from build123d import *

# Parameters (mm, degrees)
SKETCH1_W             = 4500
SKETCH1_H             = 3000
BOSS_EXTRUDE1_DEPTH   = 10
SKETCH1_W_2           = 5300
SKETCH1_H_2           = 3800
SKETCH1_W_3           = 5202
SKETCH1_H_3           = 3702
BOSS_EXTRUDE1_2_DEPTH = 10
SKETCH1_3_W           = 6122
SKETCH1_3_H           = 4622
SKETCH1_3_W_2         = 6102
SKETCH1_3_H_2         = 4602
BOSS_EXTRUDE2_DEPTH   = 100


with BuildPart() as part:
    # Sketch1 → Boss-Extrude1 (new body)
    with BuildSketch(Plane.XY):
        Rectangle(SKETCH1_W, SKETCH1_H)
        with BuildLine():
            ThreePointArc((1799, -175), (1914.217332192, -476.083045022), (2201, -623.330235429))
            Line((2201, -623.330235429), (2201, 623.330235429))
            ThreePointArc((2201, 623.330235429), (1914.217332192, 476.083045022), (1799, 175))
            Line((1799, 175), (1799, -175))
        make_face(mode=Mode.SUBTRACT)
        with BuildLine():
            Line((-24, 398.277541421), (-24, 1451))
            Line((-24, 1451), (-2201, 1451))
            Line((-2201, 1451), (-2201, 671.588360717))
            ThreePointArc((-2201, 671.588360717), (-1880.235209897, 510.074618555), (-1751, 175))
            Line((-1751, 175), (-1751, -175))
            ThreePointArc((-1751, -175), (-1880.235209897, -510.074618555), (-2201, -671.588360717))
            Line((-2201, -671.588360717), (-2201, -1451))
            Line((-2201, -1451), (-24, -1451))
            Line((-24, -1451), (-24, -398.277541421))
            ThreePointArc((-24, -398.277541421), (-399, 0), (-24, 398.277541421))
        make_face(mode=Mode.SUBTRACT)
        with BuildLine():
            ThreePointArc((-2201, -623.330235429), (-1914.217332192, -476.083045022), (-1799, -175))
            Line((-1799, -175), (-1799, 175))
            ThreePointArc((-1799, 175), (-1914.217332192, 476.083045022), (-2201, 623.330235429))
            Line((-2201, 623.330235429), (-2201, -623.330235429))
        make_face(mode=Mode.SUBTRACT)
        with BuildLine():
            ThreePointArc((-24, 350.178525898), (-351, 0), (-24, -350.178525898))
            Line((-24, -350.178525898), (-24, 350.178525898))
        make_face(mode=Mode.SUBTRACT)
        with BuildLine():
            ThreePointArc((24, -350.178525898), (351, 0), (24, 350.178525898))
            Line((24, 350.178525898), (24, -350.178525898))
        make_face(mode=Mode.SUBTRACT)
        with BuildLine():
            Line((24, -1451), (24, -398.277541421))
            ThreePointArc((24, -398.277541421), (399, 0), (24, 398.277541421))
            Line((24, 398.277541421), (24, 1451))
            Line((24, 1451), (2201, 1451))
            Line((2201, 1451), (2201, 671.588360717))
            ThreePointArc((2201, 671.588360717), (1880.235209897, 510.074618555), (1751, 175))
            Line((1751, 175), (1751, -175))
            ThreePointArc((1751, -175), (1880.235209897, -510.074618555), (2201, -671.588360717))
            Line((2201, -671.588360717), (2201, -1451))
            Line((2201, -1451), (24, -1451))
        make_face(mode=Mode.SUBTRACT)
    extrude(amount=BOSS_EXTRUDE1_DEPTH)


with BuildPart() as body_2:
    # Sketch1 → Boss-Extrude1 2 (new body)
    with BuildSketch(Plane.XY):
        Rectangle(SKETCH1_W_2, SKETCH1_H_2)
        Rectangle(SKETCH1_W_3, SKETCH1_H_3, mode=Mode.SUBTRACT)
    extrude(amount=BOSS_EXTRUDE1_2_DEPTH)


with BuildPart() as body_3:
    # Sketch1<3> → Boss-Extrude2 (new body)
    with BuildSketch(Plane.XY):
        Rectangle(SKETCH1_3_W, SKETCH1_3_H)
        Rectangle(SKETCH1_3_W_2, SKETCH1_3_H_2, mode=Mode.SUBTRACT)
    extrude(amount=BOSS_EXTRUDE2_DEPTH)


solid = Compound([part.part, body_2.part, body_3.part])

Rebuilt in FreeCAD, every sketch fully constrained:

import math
import FreeCAD as App
import Part
import Sketcher
Q = App.Units.Quantity


def add_polygon(sketch, points):
    """Adds a closed chain of lines whose ends are joined by coincident constraints."""
    first, n = sketch.GeometryCount, len(points)
    for a, b in zip(points, points[1:] + points[:1]):
        sketch.addGeometry(Part.LineSegment(App.Vector(*a, 0), App.Vector(*b, 0)), False)
    for i in range(n):
        sketch.addConstraint(Sketcher.Constraint("Coincident", first + i, 2, first + (i + 1) % n, 1))

doc = App.newDocument("Part")
params = doc.addObject("Spreadsheet::Sheet", "Params")
for row, (alias, value) in enumerate([
    ("sketch1_radius", "451 mm"),
    ("sketch1_radius2", "399 mm"),
    ("sketch1_radius3", "499 mm"),
    ("sketch1_radius4", "351 mm"),
    ("sketch1_width", "4500 mm"),
    ("pad1_length", "10 mm"),
    ("sketch2_width", "5300 mm"),
    ("sketch2_width2", "5202 mm"),
    ("sketch2_height", "3800 mm"),
    ("sketch2_height2", "3702 mm"),
    ("pad2_length", "10 mm"),
    ("sketch3_width", "6122 mm"),
    ("sketch3_width2", "6102 mm"),
    ("sketch3_height", "4622 mm"),
    ("sketch3_height2", "4602 mm"),
    ("pad3_length", "100 mm"),
], start=1):
    params.set(f"A{row}", alias)
    params.set(f"B{row}", "=" + value)
    params.setAlias(f"B{row}", alias)

body = doc.addObject("PartDesign::Body", "Body")

sketch1 = body.newObject("Sketcher::SketchObject", "Sketch")
sketch1.AttachmentSupport = (doc.getObject("XY_Plane"), [""])
sketch1.MapMode = "FlatFace"
add_polygon(sketch1, [(-2250, 1500), (-2250, -1500), (2250, -1500), (2250, 1500)])
sketch1.addGeometry(Part.ArcOfCircle(Part.Circle(App.Vector(-2250, -175, 0), App.Vector(0, 0, 1), 451), math.radians(-84), math.radians(0)), False)
sketch1.addGeometry(Part.LineSegment(App.Vector(-2201, -623, 0), App.Vector(-2201, 623, 0)), False)
sketch1.addGeometry(Part.ArcOfCircle(Part.Circle(App.Vector(-2250, 175, 0), App.Vector(0, 0, 1), 451), math.radians(0), math.radians(84)), False)
sketch1.addGeometry(Part.LineSegment(App.Vector(-1799, 175, 0), App.Vector(-1799, -175, 0)), False)
sketch1.addGeometry(Part.LineSegment(App.Vector(-24, 1451, 0), App.Vector(-24, 398, 0)), False)
sketch1.addGeometry(Part.ArcOfCircle(Part.Circle(App.Vector(0, 0, 0), App.Vector(0, 0, 1), 399), math.radians(93), math.radians(267)), False)
sketch1.addGeometry(Part.LineSegment(App.Vector(-24, -398, 0), App.Vector(-24, -1451, 0)), False)
sketch1.addGeometry(Part.LineSegment(App.Vector(-24, -1451, 0), App.Vector(-2201, -1451, 0)), False)
sketch1.addGeometry(Part.LineSegment(App.Vector(-2201, -1451, 0), App.Vector(-2201, -672, 0)), False)
sketch1.addGeometry(Part.ArcOfCircle(Part.Circle(App.Vector(-2250, -175, 0), App.Vector(0, 0, 1), 499), math.radians(-84), math.radians(0)), False)
sketch1.addGeometry(Part.LineSegment(App.Vector(-1751, -175, 0), App.Vector(-1751, 175, 0)), False)
sketch1.addGeometry(Part.ArcOfCircle(Part.Circle(App.Vector(-2250, 175, 0), App.Vector(0, 0, 1), 499), math.radians(0), math.radians(84)), False)
sketch1.addGeometry(Part.LineSegment(App.Vector(-2201, 672, 0), App.Vector(-2201, 1451, 0)), False)
sketch1.addGeometry(Part.LineSegment(App.Vector(-2201, 1451, 0), App.Vector(-24, 1451, 0)), False)
sketch1.addGeometry(Part.ArcOfCircle(Part.Circle(App.Vector(0, 0, 0), App.Vector(0, 0, 1), 351), math.radians(94), math.radians(266)), False)
sketch1.addGeometry(Part.LineSegment(App.Vector(-24, 350, 0), App.Vector(-24, -350, 0)), False)
sketch1.addGeometry(Part.ArcOfCircle(Part.Circle(App.Vector(0, 0, 0), App.Vector(0, 0, 1), 351), math.radians(-86), math.radians(86)), False)
sketch1.addGeometry(Part.LineSegment(App.Vector(24, -350, 0), App.Vector(24, 350, 0)), False)
sketch1.addGeometry(Part.LineSegment(App.Vector(2201, -1451, 0), App.Vector(24, -1451, 0)), False)
sketch1.addGeometry(Part.LineSegment(App.Vector(24, -1451, 0), App.Vector(24, -398, 0)), False)
sketch1.addGeometry(Part.ArcOfCircle(Part.Circle(App.Vector(0, 0, 0), App.Vector(0, 0, 1), 399), math.radians(-87), math.radians(87)), False)
sketch1.addGeometry(Part.LineSegment(App.Vector(24, 398, 0), App.Vector(24, 1451, 0)), False)
sketch1.addGeometry(Part.LineSegment(App.Vector(24, 1451, 0), App.Vector(2201, 1451, 0)), False)
sketch1.addGeometry(Part.LineSegment(App.Vector(2201, 1451, 0), App.Vector(2201, 672, 0)), False)
sketch1.addGeometry(Part.ArcOfCircle(Part.Circle(App.Vector(2250, 175, 0), App.Vector(0, 0, 1), 499), math.radians(96), math.radians(180)), False)
sketch1.addGeometry(Part.LineSegment(App.Vector(1751, 175, 0), App.Vector(1751, -175, 0)), False)
sketch1.addGeometry(Part.ArcOfCircle(Part.Circle(App.Vector(2250, -175, 0), App.Vector(0, 0, 1), 499), math.radians(180), math.radians(264)), False)
sketch1.addGeometry(Part.LineSegment(App.Vector(2201, -672, 0), App.Vector(2201, -1451, 0)), False)
sketch1.addGeometry(Part.ArcOfCircle(Part.Circle(App.Vector(2250, -175, 0), App.Vector(0, 0, 1), 451), math.radians(180), math.radians(264)), False)
sketch1.addGeometry(Part.LineSegment(App.Vector(1799, -175, 0), App.Vector(1799, 175, 0)), False)
sketch1.addGeometry(Part.ArcOfCircle(Part.Circle(App.Vector(2250, 175, 0), App.Vector(0, 0, 1), 451), math.radians(96), math.radians(180)), False)
sketch1.addGeometry(Part.LineSegment(App.Vector(2201, 623, 0), App.Vector(2201, -623, 0)), False)
sketch1.addConstraint([
    Sketcher.Constraint("Coincident", 4, 1, 5, 1),
    Sketcher.Constraint("Coincident", 5, 2, 6, 2),
    Sketcher.Constraint("Tangent", 6, 1, 7, 1),
    Sketcher.Constraint("Tangent", 7, 2, 4, 2),
    Sketcher.Constraint("Coincident", 8, 2, 9, 1),
    Sketcher.Constraint("Coincident", 9, 2, 10, 1),
    Sketcher.Constraint("Coincident", 10, 2, 11, 1),
    Sketcher.Constraint("Coincident", 11, 2, 12, 1),
    Sketcher.Constraint("Coincident", 12, 2, 13, 1),
    Sketcher.Constraint("Tangent", 13, 2, 14, 1),
    Sketcher.Constraint("Tangent", 14, 2, 15, 1),
    Sketcher.Constraint("Coincident", 15, 2, 16, 1),
    Sketcher.Constraint("Coincident", 16, 2, 17, 1),
    Sketcher.Constraint("Coincident", 17, 2, 8, 1),
    Sketcher.Constraint("Coincident", 18, 1, 19, 1),
    Sketcher.Constraint("Coincident", 19, 2, 18, 2),
    Sketcher.Constraint("Coincident", 20, 1, 21, 1),
    Sketcher.Constraint("Coincident", 21, 2, 20, 2),
    Sketcher.Constraint("Coincident", 22, 2, 23, 1),
    Sketcher.Constraint("Coincident", 23, 2, 24, 1),
    Sketcher.Constraint("Coincident", 24, 2, 25, 1),
    Sketcher.Constraint("Coincident", 25, 2, 26, 1),
    Sketcher.Constraint("Coincident", 26, 2, 27, 1),
    Sketcher.Constraint("Coincident", 27, 2, 28, 1),
    Sketcher.Constraint("Tangent", 28, 2, 29, 1),
    Sketcher.Constraint("Tangent", 29, 2, 30, 1),
    Sketcher.Constraint("Coincident", 30, 2, 31, 1),
    Sketcher.Constraint("Coincident", 31, 2, 22, 1),
    Sketcher.Constraint("Tangent", 32, 1, 33, 1),
    Sketcher.Constraint("Tangent", 33, 2, 34, 2),
    Sketcher.Constraint("Coincident", 34, 1, 35, 1),
    Sketcher.Constraint("Coincident", 35, 2, 32, 2),
    Sketcher.Constraint("Vertical", 0),
    Sketcher.Constraint("Horizontal", 1),
    Sketcher.Constraint("Vertical", 2),
    Sketcher.Constraint("Horizontal", 3),
    Sketcher.Constraint("Vertical", 5),
    Sketcher.Constraint("Vertical", 7),
    Sketcher.Constraint("Vertical", 8),
    Sketcher.Constraint("Vertical", 10),
    Sketcher.Constraint("Horizontal", 11),
    Sketcher.Constraint("Vertical", 12),
    Sketcher.Constraint("Vertical", 14),
    Sketcher.Constraint("Vertical", 16),
    Sketcher.Constraint("Horizontal", 17),
    Sketcher.Constraint("Vertical", 19),
    Sketcher.Constraint("Vertical", 21),
    Sketcher.Constraint("Horizontal", 22),
    Sketcher.Constraint("Vertical", 23),
    Sketcher.Constraint("Vertical", 25),
    Sketcher.Constraint("Horizontal", 26),
    Sketcher.Constraint("Vertical", 27),
    Sketcher.Constraint("Vertical", 29),
    Sketcher.Constraint("Vertical", 31),
    Sketcher.Constraint("Vertical", 33),
    Sketcher.Constraint("Vertical", 35),
    Sketcher.Constraint("Coincident", 9, 3, -1, 1),
    Sketcher.Constraint("Coincident", 18, 3, -1, 1),
    Sketcher.Constraint("Coincident", 20, 3, -1, 1),
    Sketcher.Constraint("Coincident", 24, 3, -1, 1),
    Sketcher.Constraint("Coincident", 13, 3, 4, 3),
    Sketcher.Constraint("Coincident", 15, 3, 6, 3),
    Sketcher.Constraint("Coincident", 32, 3, 30, 3),
    Sketcher.Constraint("Coincident", 34, 3, 28, 3),
    Sketcher.Constraint("Equal", 4, 6),
    Sketcher.Constraint("Equal", 18, 20),
    Sketcher.Constraint("Equal", 9, 24),
    Sketcher.Constraint("Equal", 15, 28),
    Sketcher.Constraint("Equal", 28, 30),
    Sketcher.Constraint("Equal", 6, 32),
    Sketcher.Constraint("Symmetric", 4, 3, 28, 3, -1, 1),
    Sketcher.Constraint("Symmetric", 0, 2, 2, 2, -1, 1),
    Sketcher.Constraint("Symmetric", 17, 2, 22, 2, -1, 1),
    Sketcher.Constraint("Symmetric", 10, 2, 25, 2, -1, 1),
    Sketcher.Constraint("Symmetric", 5, 2, 35, 2, -1, 1),
    Sketcher.Constraint("Symmetric", 10, 2, 22, 2, -2),
    Sketcher.Constraint("Horizontal", 15, 3, 28, 3),
    Sketcher.Constraint("Horizontal", 19, 2, 20, 1),
    Sketcher.Constraint("Vertical", 15, 3, 0, 2),
    Sketcher.Constraint("Vertical", 5, 2, 11, 2),
    Sketcher.Constraint("Vertical", 21, 2, 22, 2),
    Sketcher.Constraint("Equal", 11, 17),
    Sketcher.Constraint("Equal", 17, 22),
    Sketcher.Constraint("Equal", 22, 26),
    Sketcher.Constraint("Radius", 4, Q("451 mm")),
    Sketcher.Constraint("Radius", 9, Q("399 mm")),
    Sketcher.Constraint("Radius", 13, Q("499 mm")),
    Sketcher.Constraint("Radius", 18, Q("351 mm")),
    Sketcher.Constraint("DistanceX", 1, 1, 1, 2, Q("4500 mm")),
    Sketcher.Constraint("DistanceX", 11, 2, 11, 1, Q("2177 mm")),
    Sketcher.Constraint("DistanceY", 0, 2, 0, 1, Q("3000 mm")),
    Sketcher.Constraint("DistanceY", 7, 2, 7, 1, Q("350 mm")),
    Sketcher.Constraint("DistanceX", 5, 2, -1, 1, Q("2201 mm")),
    Sketcher.Constraint("DistanceY", 10, 2, -1, 1, Q("1451 mm")),
])
sketch1.setExpression("Constraints[88]", "Params.sketch1_radius")
sketch1.setExpression("Constraints[89]", "Params.sketch1_radius2")
sketch1.setExpression("Constraints[90]", "Params.sketch1_radius3")
sketch1.setExpression("Constraints[91]", "Params.sketch1_radius4")
sketch1.setExpression("Constraints[92]", "Params.sketch1_width")
pad1 = body.newObject("PartDesign::Pad", "Pad")
pad1.Profile = sketch1
pad1.setExpression("Length", "Params.pad1_length")
body2 = doc.addObject("PartDesign::Body", "Body001")

sketch2 = body2.newObject("Sketcher::SketchObject", "Sketch001")
sketch2.AttachmentSupport = (doc.getObject("XY_Plane001"), [""])
sketch2.MapMode = "FlatFace"
add_polygon(sketch2, [(-2650, 1900), (-2650, -1900), (2650, -1900), (2650, 1900)])
add_polygon(sketch2, [(2601, -1851), (-2601, -1851), (-2601, 1851), (2601, 1851)])
sketch2.addConstraint([
    Sketcher.Constraint("Vertical", 0),
    Sketcher.Constraint("Horizontal", 1),
    Sketcher.Constraint("Vertical", 2),
    Sketcher.Constraint("Horizontal", 3),
    Sketcher.Constraint("Horizontal", 4),
    Sketcher.Constraint("Vertical", 5),
    Sketcher.Constraint("Horizontal", 6),
    Sketcher.Constraint("Vertical", 7),
    Sketcher.Constraint("Symmetric", 0, 2, 2, 2, -1, 1),
    Sketcher.Constraint("Symmetric", 4, 2, 6, 2, -1, 1),
    Sketcher.Constraint("DistanceX", 1, 1, 1, 2, Q("5300 mm")),
    Sketcher.Constraint("DistanceX", 4, 2, 4, 1, Q("5202 mm")),
    Sketcher.Constraint("DistanceY", 0, 2, 0, 1, Q("3800 mm")),
    Sketcher.Constraint("DistanceY", 5, 1, 5, 2, Q("3702 mm")),
])
sketch2.setExpression("Constraints[18]", "Params.sketch2_width")
sketch2.setExpression("Constraints[19]", "Params.sketch2_width2")
sketch2.setExpression("Constraints[20]", "Params.sketch2_height")
sketch2.setExpression("Constraints[21]", "Params.sketch2_height2")
pad2 = body2.newObject("PartDesign::Pad", "Pad001")
pad2.Profile = sketch2
pad2.setExpression("Length", "Params.pad2_length")
body3 = doc.addObject("PartDesign::Body", "Body002")

sketch3 = body3.newObject("Sketcher::SketchObject", "Sketch002")
sketch3.AttachmentSupport = (doc.getObject("XY_Plane002"), [""])
sketch3.MapMode = "FlatFace"
add_polygon(sketch3, [(-3061, 2311), (-3061, -2311), (3061, -2311), (3061, 2311)])
add_polygon(sketch3, [(3051, -2301), (-3051, -2301), (-3051, 2301), (3051, 2301)])
sketch3.addConstraint([
    Sketcher.Constraint("Vertical", 0),
    Sketcher.Constraint("Horizontal", 1),
    Sketcher.Constraint("Vertical", 2),
    Sketcher.Constraint("Horizontal", 3),
    Sketcher.Constraint("Horizontal", 4),
    Sketcher.Constraint("Vertical", 5),
    Sketcher.Constraint("Horizontal", 6),
    Sketcher.Constraint("Vertical", 7),
    Sketcher.Constraint("Symmetric", 0, 2, 2, 2, -1, 1),
    Sketcher.Constraint("Symmetric", 4, 2, 6, 2, -1, 1),
    Sketcher.Constraint("DistanceX", 1, 1, 1, 2, Q("6122 mm")),
    Sketcher.Constraint("DistanceX", 4, 2, 4, 1, Q("6102 mm")),
    Sketcher.Constraint("DistanceY", 0, 2, 0, 1, Q("4622 mm")),
    Sketcher.Constraint("DistanceY", 5, 1, 5, 2, Q("4602 mm")),
])
sketch3.setExpression("Constraints[18]", "Params.sketch3_width")
sketch3.setExpression("Constraints[19]", "Params.sketch3_width2")
sketch3.setExpression("Constraints[20]", "Params.sketch3_height")
sketch3.setExpression("Constraints[21]", "Params.sketch3_height2")
pad3 = body3.newObject("PartDesign::Pad", "Pad002")
pad3.Profile = sketch3
pad3.setExpression("Length", "Params.pad3_length")

doc.recompute()
